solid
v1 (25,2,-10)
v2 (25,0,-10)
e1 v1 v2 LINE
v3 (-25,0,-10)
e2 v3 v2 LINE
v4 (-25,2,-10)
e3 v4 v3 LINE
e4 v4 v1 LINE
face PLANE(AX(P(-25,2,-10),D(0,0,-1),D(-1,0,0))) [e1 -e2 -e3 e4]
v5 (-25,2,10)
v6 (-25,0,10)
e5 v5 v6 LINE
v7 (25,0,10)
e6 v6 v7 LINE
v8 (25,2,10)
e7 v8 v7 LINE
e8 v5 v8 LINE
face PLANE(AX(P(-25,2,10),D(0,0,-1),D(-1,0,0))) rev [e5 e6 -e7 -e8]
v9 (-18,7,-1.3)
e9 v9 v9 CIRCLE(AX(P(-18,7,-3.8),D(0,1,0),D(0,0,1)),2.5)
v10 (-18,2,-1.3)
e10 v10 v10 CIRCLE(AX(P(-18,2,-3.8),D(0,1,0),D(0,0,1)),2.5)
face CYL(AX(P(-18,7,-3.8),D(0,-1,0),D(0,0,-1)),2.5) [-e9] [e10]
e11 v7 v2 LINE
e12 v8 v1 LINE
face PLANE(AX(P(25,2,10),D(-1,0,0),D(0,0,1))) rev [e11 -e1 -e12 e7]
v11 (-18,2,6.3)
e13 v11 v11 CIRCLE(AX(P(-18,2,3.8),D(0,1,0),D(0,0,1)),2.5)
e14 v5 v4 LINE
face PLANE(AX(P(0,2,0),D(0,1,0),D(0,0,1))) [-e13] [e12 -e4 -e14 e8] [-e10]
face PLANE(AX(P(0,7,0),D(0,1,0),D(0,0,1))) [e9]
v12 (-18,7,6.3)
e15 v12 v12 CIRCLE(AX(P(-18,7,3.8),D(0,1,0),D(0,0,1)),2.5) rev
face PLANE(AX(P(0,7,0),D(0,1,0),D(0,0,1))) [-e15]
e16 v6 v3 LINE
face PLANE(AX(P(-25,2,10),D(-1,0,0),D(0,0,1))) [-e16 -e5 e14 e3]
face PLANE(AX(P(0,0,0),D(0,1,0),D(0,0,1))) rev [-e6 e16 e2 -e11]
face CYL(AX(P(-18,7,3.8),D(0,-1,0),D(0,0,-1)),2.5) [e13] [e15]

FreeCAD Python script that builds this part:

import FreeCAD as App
import Part
import Sketcher

V = App.Vector
Q = App.Units.Quantity


def add_polygon(sketch, points):
    """Adds a closed chain of lines whose ends are joined by coincident constraints."""
    first, n = sketch.GeometryCount, len(points)
    for a, b in zip(points, points[1:] + points[:1]):
        sketch.addGeometry(Part.LineSegment(App.Vector(*a, 0), App.Vector(*b, 0)), False)
    for i in range(n):
        sketch.addConstraint(Sketcher.Constraint("Coincident", first + i, 2, first + (i + 1) % n, 1))

doc = App.newDocument("Part")
body = doc.addObject("PartDesign::Body", "Body")

# Sketch on XZ plane
sketch1 = body.newObject("Sketcher::SketchObject", "Sketch")
sketch1.AttachmentSupport = (doc.getObject("XZ_Plane"), [""])
sketch1.MapMode = "FlatFace"
add_polygon(sketch1, [(-25, -10), (-25, 10), (25, 10), (25, -10)])  # lines 0-3
sketch1.addGeometry(Part.Circle(V(-18, 3.8, 0), V(0, 0, 1), 2.5), False)  # 4
sketch1.addGeometry(Part.Circle(V(-18, -3.8, 0), V(0, 0, 1), 2.5), False)  # 5
sketch1.addConstraint([
    Sketcher.Constraint("Vertical", 0),
    Sketcher.Constraint("Horizontal", 1),
    Sketcher.Constraint("Vertical", 2),
    Sketcher.Constraint("Horizontal", 3),
    Sketcher.Constraint("Equal", 4, 5),
    Sketcher.Constraint("Symmetric", 0, 2, 2, 2, -1, 1),
    Sketcher.Constraint("Symmetric", 4, 3, 5, 3, -1),
    Sketcher.Constraint("Diameter", 4, Q("5 mm")),
    Sketcher.Constraint("DistanceX", 1, 1, 1, 2, Q("50 mm")),
    Sketcher.Constraint("DistanceY", 0, 1, 0, 2, Q("20 mm")),
    Sketcher.Constraint("DistanceX", 4, 3, -1, 1, Q("18 mm")),
    Sketcher.Constraint("DistanceY", -1, 1, 4, 3, Q("3.8 mm")),
])
pad1 = body.newObject("PartDesign::Pad", "Pad")
pad1.Profile = sketch1
pad1.Length = 2
pad1.Reversed = True

# Sketch on XZ plane
sketch2 = body.newObject("Sketcher::SketchObject", "Sketch001")
sketch2.AttachmentSupport = (doc.getObject("XZ_Plane"), [""])
sketch2.MapMode = "FlatFace"
sketch2.addGeometry([
    Part.Circle(V(-18, -3.8, 0), V(0, 0, 1), 2.5),
    Part.Circle(V(-18, 3.8, 0), V(0, 0, 1), 2.5),
], False)
sketch2.addConstraint([
    Sketcher.Constraint("Equal", 0, 1),
    Sketcher.Constraint("Symmetric", 0, 3, 1, 3, -1),
    Sketcher.Constraint("Diameter", 0, Q("5 mm")),
    Sketcher.Constraint("DistanceX", 0, 3, -1, 1, Q("18 mm")),
    Sketcher.Constraint("DistanceY", 0, 3, -1, 1, Q("3.8 mm")),
])
pad2 = body.newObject("PartDesign::Pad", "Pad001")
pad2.Profile = sketch2
pad2.Length = 7
pad2.Reversed = True

doc.recompute()
